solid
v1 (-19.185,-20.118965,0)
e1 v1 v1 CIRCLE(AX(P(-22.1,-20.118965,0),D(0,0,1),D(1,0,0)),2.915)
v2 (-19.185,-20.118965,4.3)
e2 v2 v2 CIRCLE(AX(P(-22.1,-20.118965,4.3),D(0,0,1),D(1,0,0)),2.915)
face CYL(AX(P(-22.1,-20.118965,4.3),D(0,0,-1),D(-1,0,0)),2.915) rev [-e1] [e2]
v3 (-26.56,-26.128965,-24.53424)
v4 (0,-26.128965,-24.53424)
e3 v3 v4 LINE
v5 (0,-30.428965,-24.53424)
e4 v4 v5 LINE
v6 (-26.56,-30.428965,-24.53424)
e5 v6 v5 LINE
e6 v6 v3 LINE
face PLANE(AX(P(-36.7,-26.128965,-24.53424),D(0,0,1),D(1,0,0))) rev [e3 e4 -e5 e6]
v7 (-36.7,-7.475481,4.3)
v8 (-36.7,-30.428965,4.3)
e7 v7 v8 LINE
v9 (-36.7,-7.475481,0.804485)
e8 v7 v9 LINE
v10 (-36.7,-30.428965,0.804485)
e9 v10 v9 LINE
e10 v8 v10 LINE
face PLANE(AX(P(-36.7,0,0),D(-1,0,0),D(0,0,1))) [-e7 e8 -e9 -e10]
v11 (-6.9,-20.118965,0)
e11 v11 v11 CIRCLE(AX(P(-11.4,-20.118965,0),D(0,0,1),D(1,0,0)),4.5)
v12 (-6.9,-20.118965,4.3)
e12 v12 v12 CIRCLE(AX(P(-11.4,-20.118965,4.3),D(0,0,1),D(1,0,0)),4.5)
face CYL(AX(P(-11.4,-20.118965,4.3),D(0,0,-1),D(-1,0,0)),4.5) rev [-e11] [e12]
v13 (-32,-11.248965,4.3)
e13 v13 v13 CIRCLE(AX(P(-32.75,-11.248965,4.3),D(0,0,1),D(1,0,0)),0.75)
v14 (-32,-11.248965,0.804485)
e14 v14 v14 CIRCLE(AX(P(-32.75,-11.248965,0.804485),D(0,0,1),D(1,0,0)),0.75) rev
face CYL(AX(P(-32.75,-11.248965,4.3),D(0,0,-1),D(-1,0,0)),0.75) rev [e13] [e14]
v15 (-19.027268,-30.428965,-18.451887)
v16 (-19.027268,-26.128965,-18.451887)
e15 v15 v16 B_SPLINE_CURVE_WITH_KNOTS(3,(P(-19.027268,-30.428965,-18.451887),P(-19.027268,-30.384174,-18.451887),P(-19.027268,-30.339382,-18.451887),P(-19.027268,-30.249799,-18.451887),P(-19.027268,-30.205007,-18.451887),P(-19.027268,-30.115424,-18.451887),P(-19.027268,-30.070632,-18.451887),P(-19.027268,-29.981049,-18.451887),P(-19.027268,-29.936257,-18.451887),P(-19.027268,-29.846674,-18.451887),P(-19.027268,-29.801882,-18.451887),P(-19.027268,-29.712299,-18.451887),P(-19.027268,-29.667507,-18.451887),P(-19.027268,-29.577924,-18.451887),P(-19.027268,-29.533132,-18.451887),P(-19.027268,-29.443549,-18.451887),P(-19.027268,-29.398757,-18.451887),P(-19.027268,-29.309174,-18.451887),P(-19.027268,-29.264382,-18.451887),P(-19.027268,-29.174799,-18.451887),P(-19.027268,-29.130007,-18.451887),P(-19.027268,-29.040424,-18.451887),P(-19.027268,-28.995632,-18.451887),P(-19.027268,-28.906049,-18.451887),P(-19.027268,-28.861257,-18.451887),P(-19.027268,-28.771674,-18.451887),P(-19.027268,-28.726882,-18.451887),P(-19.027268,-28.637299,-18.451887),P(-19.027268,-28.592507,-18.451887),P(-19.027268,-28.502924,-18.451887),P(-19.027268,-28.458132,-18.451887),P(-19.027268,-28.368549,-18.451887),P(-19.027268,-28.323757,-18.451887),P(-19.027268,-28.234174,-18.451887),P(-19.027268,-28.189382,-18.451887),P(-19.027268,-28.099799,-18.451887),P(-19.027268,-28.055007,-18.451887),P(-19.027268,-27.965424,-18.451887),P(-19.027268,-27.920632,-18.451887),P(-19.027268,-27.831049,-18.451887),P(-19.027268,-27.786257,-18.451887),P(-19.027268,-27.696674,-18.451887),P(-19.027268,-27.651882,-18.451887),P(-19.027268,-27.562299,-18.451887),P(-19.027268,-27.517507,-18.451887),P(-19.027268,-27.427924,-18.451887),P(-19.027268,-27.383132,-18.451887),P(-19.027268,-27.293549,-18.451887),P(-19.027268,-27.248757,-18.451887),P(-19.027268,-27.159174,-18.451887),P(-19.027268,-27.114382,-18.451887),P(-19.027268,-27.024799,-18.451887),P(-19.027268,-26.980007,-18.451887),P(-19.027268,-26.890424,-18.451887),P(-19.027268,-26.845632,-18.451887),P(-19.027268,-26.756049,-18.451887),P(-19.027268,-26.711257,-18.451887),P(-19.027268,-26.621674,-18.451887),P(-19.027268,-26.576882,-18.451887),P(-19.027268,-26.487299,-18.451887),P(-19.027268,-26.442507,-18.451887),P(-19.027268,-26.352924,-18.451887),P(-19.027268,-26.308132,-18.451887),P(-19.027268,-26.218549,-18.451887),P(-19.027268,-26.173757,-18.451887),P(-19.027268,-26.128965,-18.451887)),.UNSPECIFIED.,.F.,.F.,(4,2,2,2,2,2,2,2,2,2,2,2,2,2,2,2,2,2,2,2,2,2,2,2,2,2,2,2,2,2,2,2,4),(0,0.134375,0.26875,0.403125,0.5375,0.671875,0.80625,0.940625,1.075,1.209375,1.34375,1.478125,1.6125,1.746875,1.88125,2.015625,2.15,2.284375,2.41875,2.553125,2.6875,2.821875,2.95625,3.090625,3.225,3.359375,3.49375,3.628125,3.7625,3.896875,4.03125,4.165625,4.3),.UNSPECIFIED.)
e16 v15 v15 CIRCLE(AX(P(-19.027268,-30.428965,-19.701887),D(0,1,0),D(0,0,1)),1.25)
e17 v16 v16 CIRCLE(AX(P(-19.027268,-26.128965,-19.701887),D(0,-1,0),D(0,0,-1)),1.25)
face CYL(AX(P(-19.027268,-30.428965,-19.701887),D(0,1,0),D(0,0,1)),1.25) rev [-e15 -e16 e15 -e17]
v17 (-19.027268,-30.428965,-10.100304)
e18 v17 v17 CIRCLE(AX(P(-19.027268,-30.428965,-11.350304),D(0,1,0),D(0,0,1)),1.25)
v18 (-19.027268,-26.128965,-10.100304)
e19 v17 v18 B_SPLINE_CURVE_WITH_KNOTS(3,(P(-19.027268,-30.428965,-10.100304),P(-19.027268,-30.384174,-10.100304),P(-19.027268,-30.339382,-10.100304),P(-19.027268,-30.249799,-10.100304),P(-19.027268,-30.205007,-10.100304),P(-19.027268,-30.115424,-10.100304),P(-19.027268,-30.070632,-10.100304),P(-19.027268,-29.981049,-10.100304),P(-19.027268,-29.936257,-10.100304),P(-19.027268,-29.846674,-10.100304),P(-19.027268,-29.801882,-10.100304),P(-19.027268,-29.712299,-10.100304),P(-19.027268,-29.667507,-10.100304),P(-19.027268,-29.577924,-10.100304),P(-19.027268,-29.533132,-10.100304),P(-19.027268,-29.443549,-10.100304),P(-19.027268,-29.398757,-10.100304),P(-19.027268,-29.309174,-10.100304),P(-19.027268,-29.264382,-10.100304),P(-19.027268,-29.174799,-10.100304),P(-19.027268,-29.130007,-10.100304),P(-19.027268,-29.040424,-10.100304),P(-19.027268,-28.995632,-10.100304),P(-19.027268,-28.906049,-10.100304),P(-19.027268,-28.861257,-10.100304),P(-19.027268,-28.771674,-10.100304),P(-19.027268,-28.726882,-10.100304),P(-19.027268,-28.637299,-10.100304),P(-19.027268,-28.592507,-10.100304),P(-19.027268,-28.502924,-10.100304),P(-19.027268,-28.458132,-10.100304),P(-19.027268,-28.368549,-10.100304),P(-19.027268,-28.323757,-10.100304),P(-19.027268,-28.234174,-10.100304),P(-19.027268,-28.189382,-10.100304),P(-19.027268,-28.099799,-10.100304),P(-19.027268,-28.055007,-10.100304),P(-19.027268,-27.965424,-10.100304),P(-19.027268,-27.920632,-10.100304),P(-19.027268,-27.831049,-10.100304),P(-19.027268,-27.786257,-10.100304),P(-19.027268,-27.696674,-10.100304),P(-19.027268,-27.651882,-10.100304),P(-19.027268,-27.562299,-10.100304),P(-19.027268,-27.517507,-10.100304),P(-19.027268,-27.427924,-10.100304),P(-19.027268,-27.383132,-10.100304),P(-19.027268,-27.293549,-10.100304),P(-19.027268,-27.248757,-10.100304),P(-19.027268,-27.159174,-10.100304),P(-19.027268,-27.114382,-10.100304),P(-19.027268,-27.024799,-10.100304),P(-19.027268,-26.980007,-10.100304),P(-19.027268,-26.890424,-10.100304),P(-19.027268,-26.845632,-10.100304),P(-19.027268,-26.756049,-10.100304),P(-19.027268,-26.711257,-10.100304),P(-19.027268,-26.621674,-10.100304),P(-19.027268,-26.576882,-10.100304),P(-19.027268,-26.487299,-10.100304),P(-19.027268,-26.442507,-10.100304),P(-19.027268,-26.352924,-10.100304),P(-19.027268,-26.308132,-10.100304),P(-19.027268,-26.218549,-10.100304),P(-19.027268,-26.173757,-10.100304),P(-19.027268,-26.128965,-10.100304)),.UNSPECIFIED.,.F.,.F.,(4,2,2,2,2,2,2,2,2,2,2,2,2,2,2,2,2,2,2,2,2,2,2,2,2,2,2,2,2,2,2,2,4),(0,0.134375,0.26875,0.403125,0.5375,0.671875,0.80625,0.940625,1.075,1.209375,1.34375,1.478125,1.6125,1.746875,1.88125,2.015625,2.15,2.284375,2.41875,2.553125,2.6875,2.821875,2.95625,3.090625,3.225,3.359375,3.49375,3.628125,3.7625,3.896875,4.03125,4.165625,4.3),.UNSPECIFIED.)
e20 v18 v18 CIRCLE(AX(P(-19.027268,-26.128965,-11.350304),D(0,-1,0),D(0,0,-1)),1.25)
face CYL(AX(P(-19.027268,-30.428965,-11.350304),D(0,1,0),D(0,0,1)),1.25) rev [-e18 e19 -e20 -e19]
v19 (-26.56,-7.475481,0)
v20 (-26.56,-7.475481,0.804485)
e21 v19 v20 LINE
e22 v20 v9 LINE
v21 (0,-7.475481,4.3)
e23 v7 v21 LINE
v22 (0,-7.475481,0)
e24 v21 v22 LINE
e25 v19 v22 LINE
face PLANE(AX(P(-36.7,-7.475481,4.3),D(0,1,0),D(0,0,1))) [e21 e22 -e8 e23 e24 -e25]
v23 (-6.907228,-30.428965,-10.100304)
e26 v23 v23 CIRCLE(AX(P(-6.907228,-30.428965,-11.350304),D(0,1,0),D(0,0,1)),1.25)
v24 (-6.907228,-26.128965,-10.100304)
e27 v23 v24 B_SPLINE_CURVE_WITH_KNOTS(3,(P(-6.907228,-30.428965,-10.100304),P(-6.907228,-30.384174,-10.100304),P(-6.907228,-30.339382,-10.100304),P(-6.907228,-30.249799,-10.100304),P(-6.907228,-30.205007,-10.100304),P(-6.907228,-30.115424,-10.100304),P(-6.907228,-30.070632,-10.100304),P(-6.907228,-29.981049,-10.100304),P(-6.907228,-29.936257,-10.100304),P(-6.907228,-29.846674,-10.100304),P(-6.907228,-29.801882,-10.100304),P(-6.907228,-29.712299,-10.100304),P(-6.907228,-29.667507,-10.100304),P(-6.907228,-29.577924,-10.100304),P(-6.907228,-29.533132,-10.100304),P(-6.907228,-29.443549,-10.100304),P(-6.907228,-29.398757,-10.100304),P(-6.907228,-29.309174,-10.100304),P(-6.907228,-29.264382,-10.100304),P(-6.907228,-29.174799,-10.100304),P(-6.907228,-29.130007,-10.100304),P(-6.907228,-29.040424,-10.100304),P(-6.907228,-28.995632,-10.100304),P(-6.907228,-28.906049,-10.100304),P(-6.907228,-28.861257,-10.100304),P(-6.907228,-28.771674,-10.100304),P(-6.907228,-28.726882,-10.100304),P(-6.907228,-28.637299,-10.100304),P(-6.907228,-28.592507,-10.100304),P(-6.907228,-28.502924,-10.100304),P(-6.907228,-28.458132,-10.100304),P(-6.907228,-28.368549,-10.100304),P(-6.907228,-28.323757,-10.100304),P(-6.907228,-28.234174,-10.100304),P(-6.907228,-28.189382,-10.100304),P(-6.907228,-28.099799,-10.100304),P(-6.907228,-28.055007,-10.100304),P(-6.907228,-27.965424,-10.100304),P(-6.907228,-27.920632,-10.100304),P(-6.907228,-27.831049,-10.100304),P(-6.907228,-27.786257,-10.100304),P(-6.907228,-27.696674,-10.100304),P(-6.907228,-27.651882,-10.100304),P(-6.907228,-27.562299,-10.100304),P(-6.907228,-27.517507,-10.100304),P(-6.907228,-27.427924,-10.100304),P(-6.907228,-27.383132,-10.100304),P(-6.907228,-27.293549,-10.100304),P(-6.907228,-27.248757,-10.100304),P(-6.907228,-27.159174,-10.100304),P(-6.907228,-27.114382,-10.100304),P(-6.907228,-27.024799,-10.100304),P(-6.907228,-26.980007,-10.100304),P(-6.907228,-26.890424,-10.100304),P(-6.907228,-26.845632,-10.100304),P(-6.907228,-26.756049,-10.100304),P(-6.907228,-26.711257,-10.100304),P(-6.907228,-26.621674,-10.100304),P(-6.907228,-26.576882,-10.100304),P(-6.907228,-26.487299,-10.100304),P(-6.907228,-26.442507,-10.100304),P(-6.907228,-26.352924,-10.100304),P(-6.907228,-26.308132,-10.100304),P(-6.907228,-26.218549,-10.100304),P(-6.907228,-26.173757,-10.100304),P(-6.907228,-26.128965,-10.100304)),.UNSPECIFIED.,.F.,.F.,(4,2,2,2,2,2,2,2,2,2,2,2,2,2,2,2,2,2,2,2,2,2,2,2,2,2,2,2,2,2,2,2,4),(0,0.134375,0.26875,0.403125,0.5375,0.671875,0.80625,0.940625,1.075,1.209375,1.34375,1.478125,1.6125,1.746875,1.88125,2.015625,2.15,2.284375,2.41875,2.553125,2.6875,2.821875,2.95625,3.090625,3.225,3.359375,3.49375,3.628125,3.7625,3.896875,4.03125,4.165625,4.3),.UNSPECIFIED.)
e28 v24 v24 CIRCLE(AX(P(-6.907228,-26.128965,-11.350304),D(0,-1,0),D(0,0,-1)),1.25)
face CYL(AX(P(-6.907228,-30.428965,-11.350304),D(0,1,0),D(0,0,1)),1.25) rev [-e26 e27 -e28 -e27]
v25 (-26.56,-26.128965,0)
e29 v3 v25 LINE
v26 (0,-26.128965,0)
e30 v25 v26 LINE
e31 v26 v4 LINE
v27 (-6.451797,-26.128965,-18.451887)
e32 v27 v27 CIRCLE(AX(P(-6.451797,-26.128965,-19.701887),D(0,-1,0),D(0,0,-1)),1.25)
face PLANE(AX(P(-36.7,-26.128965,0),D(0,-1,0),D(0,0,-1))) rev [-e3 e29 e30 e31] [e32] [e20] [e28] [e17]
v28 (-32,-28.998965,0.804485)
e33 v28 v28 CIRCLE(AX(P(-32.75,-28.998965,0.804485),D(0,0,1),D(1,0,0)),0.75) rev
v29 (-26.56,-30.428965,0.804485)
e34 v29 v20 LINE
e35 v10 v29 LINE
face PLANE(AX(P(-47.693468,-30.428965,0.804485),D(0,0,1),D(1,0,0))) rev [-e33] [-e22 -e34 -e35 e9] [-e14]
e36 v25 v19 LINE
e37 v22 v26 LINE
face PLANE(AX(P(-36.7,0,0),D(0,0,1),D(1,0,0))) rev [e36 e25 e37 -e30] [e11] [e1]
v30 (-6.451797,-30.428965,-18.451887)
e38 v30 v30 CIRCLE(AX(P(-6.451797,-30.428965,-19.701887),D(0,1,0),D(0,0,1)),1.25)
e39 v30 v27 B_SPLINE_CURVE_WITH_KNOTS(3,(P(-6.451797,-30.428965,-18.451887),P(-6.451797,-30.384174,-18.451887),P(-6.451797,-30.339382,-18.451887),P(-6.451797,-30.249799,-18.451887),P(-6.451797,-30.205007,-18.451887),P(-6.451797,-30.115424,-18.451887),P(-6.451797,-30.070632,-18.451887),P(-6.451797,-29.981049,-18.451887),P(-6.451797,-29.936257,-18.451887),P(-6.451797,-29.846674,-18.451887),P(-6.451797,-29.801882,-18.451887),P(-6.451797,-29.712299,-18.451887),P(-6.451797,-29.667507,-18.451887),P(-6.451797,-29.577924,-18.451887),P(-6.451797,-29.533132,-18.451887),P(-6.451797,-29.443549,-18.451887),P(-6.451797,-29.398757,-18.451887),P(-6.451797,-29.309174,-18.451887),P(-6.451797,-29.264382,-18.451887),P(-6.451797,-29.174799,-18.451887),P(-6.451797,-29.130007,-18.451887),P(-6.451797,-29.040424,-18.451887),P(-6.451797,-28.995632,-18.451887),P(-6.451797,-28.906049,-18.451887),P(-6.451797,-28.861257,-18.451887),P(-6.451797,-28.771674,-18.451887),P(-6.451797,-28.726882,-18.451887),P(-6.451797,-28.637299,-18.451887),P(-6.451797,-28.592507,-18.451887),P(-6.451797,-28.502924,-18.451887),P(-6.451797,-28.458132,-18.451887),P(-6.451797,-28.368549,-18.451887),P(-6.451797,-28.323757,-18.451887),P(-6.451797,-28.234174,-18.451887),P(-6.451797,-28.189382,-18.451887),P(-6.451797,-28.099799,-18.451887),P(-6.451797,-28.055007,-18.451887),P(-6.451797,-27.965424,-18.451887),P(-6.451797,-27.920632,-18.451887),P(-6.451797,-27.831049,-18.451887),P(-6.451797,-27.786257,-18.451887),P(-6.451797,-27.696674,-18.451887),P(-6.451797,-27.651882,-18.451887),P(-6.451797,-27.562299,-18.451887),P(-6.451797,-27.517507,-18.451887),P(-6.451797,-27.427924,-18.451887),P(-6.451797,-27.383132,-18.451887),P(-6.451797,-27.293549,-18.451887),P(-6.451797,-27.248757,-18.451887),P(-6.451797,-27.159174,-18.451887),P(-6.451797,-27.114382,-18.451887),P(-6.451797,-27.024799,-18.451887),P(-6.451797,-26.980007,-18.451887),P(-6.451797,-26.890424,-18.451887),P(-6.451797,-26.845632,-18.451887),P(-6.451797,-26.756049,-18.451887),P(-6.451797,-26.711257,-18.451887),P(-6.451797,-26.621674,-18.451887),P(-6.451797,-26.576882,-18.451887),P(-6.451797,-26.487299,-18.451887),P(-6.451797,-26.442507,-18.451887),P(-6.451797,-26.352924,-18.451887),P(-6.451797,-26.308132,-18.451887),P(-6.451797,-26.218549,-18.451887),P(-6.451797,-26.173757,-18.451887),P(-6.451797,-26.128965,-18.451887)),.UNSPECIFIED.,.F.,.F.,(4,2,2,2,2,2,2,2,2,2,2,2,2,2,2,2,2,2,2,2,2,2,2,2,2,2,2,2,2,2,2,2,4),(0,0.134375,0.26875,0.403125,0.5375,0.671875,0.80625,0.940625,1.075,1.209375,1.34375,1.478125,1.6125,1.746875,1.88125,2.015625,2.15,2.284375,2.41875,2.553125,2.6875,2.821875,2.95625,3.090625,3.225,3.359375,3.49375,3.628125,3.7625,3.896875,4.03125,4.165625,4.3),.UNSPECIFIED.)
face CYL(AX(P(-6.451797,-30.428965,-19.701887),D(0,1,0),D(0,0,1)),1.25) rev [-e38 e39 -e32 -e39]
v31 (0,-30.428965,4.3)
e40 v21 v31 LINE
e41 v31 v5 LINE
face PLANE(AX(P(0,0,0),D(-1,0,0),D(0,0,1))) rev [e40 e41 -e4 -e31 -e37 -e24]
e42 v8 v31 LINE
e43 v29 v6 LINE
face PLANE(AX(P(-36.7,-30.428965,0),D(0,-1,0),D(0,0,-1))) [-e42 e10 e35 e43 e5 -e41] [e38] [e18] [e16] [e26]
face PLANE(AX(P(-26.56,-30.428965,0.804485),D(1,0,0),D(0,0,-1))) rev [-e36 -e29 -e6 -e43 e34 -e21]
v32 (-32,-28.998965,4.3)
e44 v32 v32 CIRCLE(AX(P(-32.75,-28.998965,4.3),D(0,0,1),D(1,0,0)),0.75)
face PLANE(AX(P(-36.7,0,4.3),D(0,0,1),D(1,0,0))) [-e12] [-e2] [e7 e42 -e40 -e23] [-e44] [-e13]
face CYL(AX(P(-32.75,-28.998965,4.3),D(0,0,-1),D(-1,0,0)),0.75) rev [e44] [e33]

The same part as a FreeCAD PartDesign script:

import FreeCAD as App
import Part
import Sketcher


def add_polygon(sketch, points):
    """Adds a closed chain of lines whose ends are joined by coincident constraints."""
    first, n = sketch.GeometryCount, len(points)
    for a, b in zip(points, points[1:] + points[:1]):
        sketch.addGeometry(Part.LineSegment(App.Vector(*a, 0), App.Vector(*b, 0)), False)
    for i in range(n):
        sketch.addConstraint(Sketcher.Constraint("Coincident", first + i, 2, first + (i + 1) % n, 1))

doc = App.newDocument("Part")
body = doc.addObject("PartDesign::Body", "Body")

sketch1 = body.newObject("Sketcher::SketchObject", "Sketch")
sketch1.AttachmentSupport = (doc.getObject("YZ_Plane"), [""])
sketch1.MapMode = "FlatFace"
add_polygon(sketch1, [(-26.1, 0), (0, 0), (0, 4.3), (-30.4, 4.3), (-30.4, -24.5), (-26.1, -24.5)])
sketch1.addConstraint([
    Sketcher.Constraint("Horizontal", 0),
    Sketcher.Constraint("Vertical", 1),
    Sketcher.Constraint("Horizontal", 2),
    Sketcher.Constraint("Vertical", 3),
    Sketcher.Constraint("Horizontal", 4),
    Sketcher.Constraint("Vertical", 5),
    Sketcher.Constraint("Coincident", 0, 2, -1, 1),
    Sketcher.Constraint("Equal", 4, 1),
    Sketcher.Constraint("DistanceX", 4, 1, 4, 2, 4.3),
    Sketcher.Constraint("DistanceY", 3, 2, 3, 1, 28.83424),
    Sketcher.Constraint("DistanceX", 0, 1, 0, 2, 26.128965),
])
pad1 = body.newObject("PartDesign::Pad", "Pad")
pad1.Profile = sketch1
pad1.Length = 36.7
pad1.Reversed = True

sketch2 = body.newObject("Sketcher::SketchObject", "Sketch001")
sketch2.AttachmentSupport = (doc.getObject("XZ_Plane"), [""])
sketch2.MapMode = "FlatFace"
add_polygon(sketch2, [(-48, -39), (-48, 1), (-27, 1), (-27, -39)])
sketch2.addConstraint([
    Sketcher.Constraint("Vertical", 0),
    Sketcher.Constraint("Horizontal", 1),
    Sketcher.Constraint("Vertical", 2),
    Sketcher.Constraint("Horizontal", 3),
    Sketcher.Constraint("DistanceX", 1, 2, -1, 1, 26.56),
    Sketcher.Constraint("DistanceX", 1, 1, 1, 2, 21.133468),
    Sketcher.Constraint("DistanceY", 0, 1, 0, 2, 40.048713),
    Sketcher.Constraint("DistanceY", 2, 2, -1, 1, 39.244228),
])
pocket1 = body.newObject("PartDesign::Pocket", "Pocket")
pocket1.Profile = sketch2
pocket1.Type = "ThroughAll"
pocket1.Reversed = True

sketch3 = body.newObject("Sketcher::SketchObject", "Sketch002")
sketch3.AttachmentSupport = (doc.getObject("XY_Plane"), [""])
sketch3.MapMode = "FlatFace"
sketch3.addGeometry(Part.Circle(App.Vector(-11.4, -20.1, 0), App.Vector(0, 0, 1), 4.5), False)
sketch3.addConstraint([
    Sketcher.Constraint("Diameter", 0, 9.0),
    Sketcher.Constraint("DistanceX", 0, 3, -1, 1, 11.4),
    Sketcher.Constraint("DistanceY", 0, 3, -1, 1, 20.118965),
])
pocket2 = body.newObject("PartDesign::Pocket", "Pocket001")
pocket2.Profile = sketch3
pocket2.Type = "ThroughAll"
pocket2.Reversed = True

sketch4 = body.newObject("Sketcher::SketchObject", "Sketch003")
sketch4.AttachmentSupport = (doc.getObject("XY_Plane"), [""])
sketch4.MapMode = "FlatFace"
sketch4.addGeometry(Part.Circle(App.Vector(-22.1, -20.1, 0), App.Vector(0, 0, 1), 2.9), False)
sketch4.addConstraint([
    Sketcher.Constraint("Diameter", 0, 5.83),
    Sketcher.Constraint("DistanceX", 0, 3, -1, 1, 22.1),
    Sketcher.Constraint("DistanceY", 0, 3, -1, 1, 20.118965),
])
pocket3 = body.newObject("PartDesign::Pocket", "Pocket002")
pocket3.Profile = sketch4
pocket3.Type = "ThroughAll"
pocket3.Reversed = True

sketch5 = body.newObject("Sketcher::SketchObject", "Sketch004")
sketch5.AttachmentSupport = (doc.getObject("XY_Plane"), [""])
sketch5.MapMode = "FlatFace"
sketch5.addGeometry([
    Part.Circle(App.Vector(-32.8, -11.2, 0), App.Vector(0, 0, 1), 0.8),
    Part.Circle(App.Vector(-32.8, -29, 0), App.Vector(0, 0, 1), 0.8),
], False)
sketch5.addConstraint([
    Sketcher.Constraint("Equal", 0, 1),
    Sketcher.Constraint("Vertical", 0, 3, 1, 3),
    Sketcher.Constraint("Diameter", 0, 1.5),
    Sketcher.Constraint("DistanceX", 0, 3, -1, 1, 32.75),
    Sketcher.Constraint("DistanceY", 1, 3, 0, 3, 17.75),
    Sketcher.Constraint("DistanceY", 0, 3, -1, 1, 11.248965),
])
pocket4 = body.newObject("PartDesign::Pocket", "Pocket003")
pocket4.Profile = sketch5
pocket4.Type = "ThroughAll"
pocket4.Reversed = True

sketch6 = body.newObject("Sketcher::SketchObject", "Sketch005")
sketch6.AttachmentSupport = (doc.getObject("XZ_Plane"), [""])
sketch6.MapMode = "FlatFace"
sketch6.addGeometry([
    Part.Circle(App.Vector(-19, -11.4, 0), App.Vector(0, 0, 1), 1.2),
    Part.Circle(App.Vector(-19, -19.7, 0), App.Vector(0, 0, 1), 1.2),
    Part.Circle(App.Vector(-6.9, -11.4, 0), App.Vector(0, 0, 1), 1.2),
    Part.Circle(App.Vector(-6.5, -19.7, 0), App.Vector(0, 0, 1), 1.2),
], False)
sketch6.addConstraint([
    Sketcher.Constraint("Equal", 0, 1),
    Sketcher.Constraint("Equal", 1, 2),
    Sketcher.Constraint("Equal", 2, 3),
    Sketcher.Constraint("Horizontal", 0, 3, 2, 3),
    Sketcher.Constraint("Horizontal", 1, 3, 3, 3),
    Sketcher.Constraint("Vertical", 0, 3, 1, 3),
    Sketcher.Constraint("Diameter", 0, 2.5),
    Sketcher.Constraint("DistanceX", 2, 3, -1, 1, 6.907228),
    Sketcher.Constraint("DistanceX", 0, 3, 2, 3, 12.12004),
    Sketcher.Constraint("DistanceX", 2, 3, 3, 3, 0.455431),
    Sketcher.Constraint("DistanceY", 0, 3, -1, 1, 11.350304),
    Sketcher.Constraint("DistanceY", 1, 3, -1, 1, 19.701887),
])
pocket5 = body.newObject("PartDesign::Pocket", "Pocket004")
pocket5.Profile = sketch6
pocket5.Type = "ThroughAll"
pocket5.Reversed = True

sketch7 = body.newObject("Sketcher::SketchObject", "Sketch006")
sketch7.AttachmentSupport = (doc.getObject("XY_Plane"), [""])
sketch7.MapMode = "FlatFace"
add_polygon(sketch7, [(-37, 0), (-37, -7), (0, -7), (0, 0)])
sketch7.addConstraint([
    Sketcher.Constraint("Vertical", 0),
    Sketcher.Constraint("Horizontal", 1),
    Sketcher.Constraint("Vertical", 2),
    Sketcher.Constraint("Horizontal", 3),
    Sketcher.Constraint("Coincident", 2, 2, -1, 1),
    Sketcher.Constraint("DistanceX", 1, 1, 1, 2, 36.7),
    Sketcher.Constraint("DistanceY", 0, 2, 0, 1, 7.475481),
])
pocket6 = body.newObject("PartDesign::Pocket", "Pocket005")
pocket6.Profile = sketch7
pocket6.Type = "ThroughAll"
pocket6.Reversed = True

doc.recompute()
